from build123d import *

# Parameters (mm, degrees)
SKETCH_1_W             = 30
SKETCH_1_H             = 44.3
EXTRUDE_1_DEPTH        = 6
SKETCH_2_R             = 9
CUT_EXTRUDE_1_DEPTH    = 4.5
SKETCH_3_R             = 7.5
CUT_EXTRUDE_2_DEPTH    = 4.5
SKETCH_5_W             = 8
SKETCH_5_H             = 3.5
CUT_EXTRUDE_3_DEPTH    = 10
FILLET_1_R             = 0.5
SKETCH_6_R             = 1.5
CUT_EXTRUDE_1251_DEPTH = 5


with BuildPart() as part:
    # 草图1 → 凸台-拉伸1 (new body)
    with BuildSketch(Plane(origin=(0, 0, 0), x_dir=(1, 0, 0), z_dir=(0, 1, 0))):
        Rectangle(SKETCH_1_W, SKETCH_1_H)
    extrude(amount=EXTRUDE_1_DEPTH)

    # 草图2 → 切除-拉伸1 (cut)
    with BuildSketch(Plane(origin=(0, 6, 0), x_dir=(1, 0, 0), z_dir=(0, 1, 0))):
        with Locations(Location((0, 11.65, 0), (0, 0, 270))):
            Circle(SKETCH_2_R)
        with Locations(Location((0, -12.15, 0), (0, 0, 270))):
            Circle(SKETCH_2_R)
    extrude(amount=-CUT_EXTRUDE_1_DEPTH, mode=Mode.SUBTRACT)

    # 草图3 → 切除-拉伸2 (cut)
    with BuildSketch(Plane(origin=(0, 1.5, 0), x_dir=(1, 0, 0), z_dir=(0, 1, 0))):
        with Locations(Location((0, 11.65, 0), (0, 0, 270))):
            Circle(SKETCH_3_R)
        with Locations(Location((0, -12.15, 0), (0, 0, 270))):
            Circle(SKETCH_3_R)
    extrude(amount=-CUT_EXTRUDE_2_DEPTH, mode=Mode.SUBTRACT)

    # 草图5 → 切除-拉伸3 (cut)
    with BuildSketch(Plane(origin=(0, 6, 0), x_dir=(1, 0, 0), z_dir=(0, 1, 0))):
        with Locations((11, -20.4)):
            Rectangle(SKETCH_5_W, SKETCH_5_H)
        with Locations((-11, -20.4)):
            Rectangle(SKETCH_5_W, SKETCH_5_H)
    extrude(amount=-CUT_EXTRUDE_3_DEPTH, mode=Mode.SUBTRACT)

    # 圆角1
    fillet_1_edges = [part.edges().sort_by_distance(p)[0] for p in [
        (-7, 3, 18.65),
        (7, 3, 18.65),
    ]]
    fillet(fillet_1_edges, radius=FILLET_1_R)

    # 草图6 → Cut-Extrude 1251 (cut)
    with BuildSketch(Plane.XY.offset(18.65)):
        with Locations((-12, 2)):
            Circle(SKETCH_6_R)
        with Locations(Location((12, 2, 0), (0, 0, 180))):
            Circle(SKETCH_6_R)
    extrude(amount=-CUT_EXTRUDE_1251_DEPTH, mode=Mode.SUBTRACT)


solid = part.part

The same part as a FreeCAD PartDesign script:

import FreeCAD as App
import Part
import Sketcher
from FreeCAD import Vector
Q = App.Units.Quantity


def edges_at(feature, points):
    """Names of the edges that pass closest to the given points."""
    edges = feature.Shape.Edges
    near = lambda p: min(range(len(edges)), key=lambda i: edges[i].distToShape(Part.Vertex(*p))[0])
    return sorted({f"Edge{near(p) + 1}" for p in points})

doc = App.newDocument("Part")
body = doc.addObject("PartDesign::Body", "Body")

sketch1 = body.newObject("Sketcher::SketchObject", "Sketch")
sketch1.AttachmentSupport = (doc.getObject("XZ_Plane"), [""])
sketch1.MapMode = "FlatFace"
sketch1.addGeometry(Part.LineSegment(Vector(-15, -22, 0), Vector(-15, 22, 0)), False)
sketch1.addGeometry(Part.LineSegment(Vector(-15, 22, 0), Vector(15, 22, 0)), False)
sketch1.addGeometry(Part.LineSegment(Vector(15, 22, 0), Vector(15, -22, 0)), False)
sketch1.addGeometry(Part.LineSegment(Vector(15, -22, 0), Vector(-15, -22, 0)), False)
sketch1.addConstraint(Sketcher.Constraint("Coincident", 0, 2, 1, 1))
sketch1.addConstraint(Sketcher.Constraint("Coincident", 1, 2, 2, 1))
sketch1.addConstraint(Sketcher.Constraint("Coincident", 2, 2, 3, 1))
sketch1.addConstraint(Sketcher.Constraint("Coincident", 3, 2, 0, 1))
sketch1.addConstraint(Sketcher.Constraint("Vertical", 0))
sketch1.addConstraint(Sketcher.Constraint("Horizontal", 1))
sketch1.addConstraint(Sketcher.Constraint("Vertical", 2))
sketch1.addConstraint(Sketcher.Constraint("Horizontal", 3))
sketch1.addConstraint(Sketcher.Constraint("Symmetric", 0, 2, 2, 2, -1, 1))
sketch1.addConstraint(Sketcher.Constraint("DistanceX", 1, 1, 1, 2, Q("30 mm")))
sketch1.addConstraint(Sketcher.Constraint("DistanceY", 0, 1, 0, 2, Q("44.3 mm")))
pad1 = body.newObject("PartDesign::Pad", "Pad")
pad1.Profile = sketch1
pad1.Length = 6
pad1.Reversed = True

sketch2 = body.newObject("Sketcher::SketchObject", "Sketch001")
sketch2.AttachmentSupport = (doc.getObject("XZ_Plane"), [""])
sketch2.MapMode = "FlatFace"
sketch2.AttachmentOffset = App.Placement(Vector(0, 0, -6), App.Rotation())
sketch2.addGeometry(Part.Circle(Vector(0, -12, 0), Vector(0, 0, 1), 9), False)
sketch2.addGeometry(Part.Circle(Vector(0, 12, 0), Vector(0, 0, 1), 9), False)
sketch2.addConstraint(Sketcher.Constraint("Equal", 0, 1))
sketch2.addConstraint(Sketcher.Constraint("PointOnObject", 0, 3, -2))
sketch2.addConstraint(Sketcher.Constraint("PointOnObject", 1, 3, -2))
sketch2.addConstraint(Sketcher.Constraint("Diameter", 0, Q("18 mm")))
sketch2.addConstraint(Sketcher.Constraint("DistanceY", 0, 3, 1, 3, Q("23.8 mm")))
sketch2.addConstraint(Sketcher.Constraint("DistanceY", 0, 3, -1, 1, Q("11.65 mm")))
pocket1 = body.newObject("PartDesign::Pocket", "Pocket")
pocket1.Profile = sketch2
pocket1.Length = 4.5
pocket1.Reversed = True

sketch3 = body.newObject("Sketcher::SketchObject", "Sketch002")
sketch3.AttachmentSupport = (doc.getObject("XZ_Plane"), [""])
sketch3.MapMode = "FlatFace"
sketch3.AttachmentOffset = App.Placement(Vector(0, 0, -1.5), App.Rotation())
sketch3.addGeometry(Part.Circle(Vector(0, -12, 0), Vector(0, 0, 1), 8), False)
sketch3.addGeometry(Part.Circle(Vector(0, 12, 0), Vector(0, 0, 1), 8), False)
sketch3.addConstraint(Sketcher.Constraint("Equal", 0, 1))
sketch3.addConstraint(Sketcher.Constraint("PointOnObject", 0, 3, -2))
sketch3.addConstraint(Sketcher.Constraint("PointOnObject", 1, 3, -2))
sketch3.addConstraint(Sketcher.Constraint("Diameter", 0, Q("15 mm")))
sketch3.addConstraint(Sketcher.Constraint("DistanceY", 0, 3, 1, 3, Q("23.8 mm")))
sketch3.addConstraint(Sketcher.Constraint("DistanceY", 0, 3, -1, 1, Q("11.65 mm")))
pocket2 = body.newObject("PartDesign::Pocket", "Pocket001")
pocket2.Profile = sketch3
pocket2.Length = 4.5
pocket2.Reversed = True

sketch4 = body.newObject("Sketcher::SketchObject", "Sketch003")
sketch4.AttachmentSupport = (doc.getObject("XZ_Plane"), [""])
sketch4.MapMode = "FlatFace"
sketch4.AttachmentOffset = App.Placement(Vector(0, 0, -6), App.Rotation())
sketch4.addGeometry(Part.LineSegment(Vector(7, 18.6, 0), Vector(7, 22.1, 0)), False)
sketch4.addGeometry(Part.LineSegment(Vector(7, 22.1, 0), Vector(15, 22.1, 0)), False)
sketch4.addGeometry(Part.LineSegment(Vector(15, 22.1, 0), Vector(15, 18.6, 0)), False)
sketch4.addGeometry(Part.LineSegment(Vector(15, 18.6, 0), Vector(7, 18.6, 0)), False)
sketch4.addGeometry(Part.LineSegment(Vector(-15, 18.6, 0), Vector(-15, 22.1, 0)), False)
sketch4.addGeometry(Part.LineSegment(Vector(-15, 22.1, 0), Vector(-7, 22.1, 0)), False)
sketch4.addGeometry(Part.LineSegment(Vector(-7, 22.1, 0), Vector(-7, 18.6, 0)), False)
sketch4.addGeometry(Part.LineSegment(Vector(-7, 18.6, 0), Vector(-15, 18.6, 0)), False)
sketch4.addConstraint(Sketcher.Constraint("Coincident", 0, 2, 1, 1))
sketch4.addConstraint(Sketcher.Constraint("Coincident", 1, 2, 2, 1))
sketch4.addConstraint(Sketcher.Constraint("Coincident", 2, 2, 3, 1))
sketch4.addConstraint(Sketcher.Constraint("Coincident", 3, 2, 0, 1))
sketch4.addConstraint(Sketcher.Constraint("Coincident", 4, 2, 5, 1))
sketch4.addConstraint(Sketcher.Constraint("Coincident", 5, 2, 6, 1))
sketch4.addConstraint(Sketcher.Constraint("Coincident", 6, 2, 7, 1))
sketch4.addConstraint(Sketcher.Constraint("Coincident", 7, 2, 4, 1))
sketch4.addConstraint(Sketcher.Constraint("Vertical", 0))
sketch4.addConstraint(Sketcher.Constraint("Horizontal", 1))
sketch4.addConstraint(Sketcher.Constraint("Vertical", 2))
sketch4.addConstraint(Sketcher.Constraint("Horizontal", 3))
sketch4.addConstraint(Sketcher.Constraint("Vertical", 4))
sketch4.addConstraint(Sketcher.Constraint("Horizontal", 5))
sketch4.addConstraint(Sketcher.Constraint("Vertical", 6))
sketch4.addConstraint(Sketcher.Constraint("Horizontal", 7))
sketch4.addConstraint(Sketcher.Constraint("Symmetric", 1, 2, 4, 2, -2))
sketch4.addConstraint(Sketcher.Constraint("Symmetric", 3, 2, 6, 2, -2))
sketch4.addConstraint(Sketcher.Constraint("DistanceX", 1, 1, 1, 2, Q("8 mm")))
sketch4.addConstraint(Sketcher.Constraint("DistanceY", 0, 1, 0, 2, Q("3.5 mm")))
sketch4.addConstraint(Sketcher.Constraint("DistanceX", -1, 1, 0, 2, Q("7 mm")))
sketch4.addConstraint(Sketcher.Constraint("DistanceY", -1, 1, 0, 2, Q("22.15 mm")))
pocket3 = body.newObject("PartDesign::Pocket", "Pocket002")
pocket3.Profile = sketch4
pocket3.Length = 10
pocket3.Reversed = True
doc.recompute()

fillet = body.newObject("PartDesign::Fillet", "Fillet")
fillet.Base = (pocket3, edges_at(pocket3, [(-7, 3, 18.65), (7, 3, 18.65)]))
fillet.Radius = 0.5

sketch5 = body.newObject("Sketcher::SketchObject", "Sketch004")
sketch5.AttachmentSupport = (doc.getObject("XY_Plane"), [""])
sketch5.MapMode = "FlatFace"
sketch5.AttachmentOffset = App.Placement(Vector(0, 0, 18.65), App.Rotation())
sketch5.addGeometry(Part.Circle(Vector(-12, 2, 0), Vector(0, 0, 1), 1.5), False)
sketch5.addGeometry(Part.Circle(Vector(12, 2, 0), Vector(0, 0, 1), 1.5), False)
sketch5.addConstraint(Sketcher.Constraint("Equal", 0, 1))
sketch5.addConstraint(Sketcher.Constraint("Symmetric", 0, 3, 1, 3, -2))
sketch5.addConstraint(Sketcher.Constraint("Diameter", 0, Q("3 mm")))
sketch5.addConstraint(Sketcher.Constraint("DistanceX", 0, 3, -1, 1, Q("12 mm")))
sketch5.addConstraint(Sketcher.Constraint("DistanceY", -1, 1, 0, 3, Q("2 mm")))
pocket4 = body.newObject("PartDesign::Pocket", "Pocket003")
pocket4.Profile = sketch5
pocket4.Length = 5

doc.recompute()
